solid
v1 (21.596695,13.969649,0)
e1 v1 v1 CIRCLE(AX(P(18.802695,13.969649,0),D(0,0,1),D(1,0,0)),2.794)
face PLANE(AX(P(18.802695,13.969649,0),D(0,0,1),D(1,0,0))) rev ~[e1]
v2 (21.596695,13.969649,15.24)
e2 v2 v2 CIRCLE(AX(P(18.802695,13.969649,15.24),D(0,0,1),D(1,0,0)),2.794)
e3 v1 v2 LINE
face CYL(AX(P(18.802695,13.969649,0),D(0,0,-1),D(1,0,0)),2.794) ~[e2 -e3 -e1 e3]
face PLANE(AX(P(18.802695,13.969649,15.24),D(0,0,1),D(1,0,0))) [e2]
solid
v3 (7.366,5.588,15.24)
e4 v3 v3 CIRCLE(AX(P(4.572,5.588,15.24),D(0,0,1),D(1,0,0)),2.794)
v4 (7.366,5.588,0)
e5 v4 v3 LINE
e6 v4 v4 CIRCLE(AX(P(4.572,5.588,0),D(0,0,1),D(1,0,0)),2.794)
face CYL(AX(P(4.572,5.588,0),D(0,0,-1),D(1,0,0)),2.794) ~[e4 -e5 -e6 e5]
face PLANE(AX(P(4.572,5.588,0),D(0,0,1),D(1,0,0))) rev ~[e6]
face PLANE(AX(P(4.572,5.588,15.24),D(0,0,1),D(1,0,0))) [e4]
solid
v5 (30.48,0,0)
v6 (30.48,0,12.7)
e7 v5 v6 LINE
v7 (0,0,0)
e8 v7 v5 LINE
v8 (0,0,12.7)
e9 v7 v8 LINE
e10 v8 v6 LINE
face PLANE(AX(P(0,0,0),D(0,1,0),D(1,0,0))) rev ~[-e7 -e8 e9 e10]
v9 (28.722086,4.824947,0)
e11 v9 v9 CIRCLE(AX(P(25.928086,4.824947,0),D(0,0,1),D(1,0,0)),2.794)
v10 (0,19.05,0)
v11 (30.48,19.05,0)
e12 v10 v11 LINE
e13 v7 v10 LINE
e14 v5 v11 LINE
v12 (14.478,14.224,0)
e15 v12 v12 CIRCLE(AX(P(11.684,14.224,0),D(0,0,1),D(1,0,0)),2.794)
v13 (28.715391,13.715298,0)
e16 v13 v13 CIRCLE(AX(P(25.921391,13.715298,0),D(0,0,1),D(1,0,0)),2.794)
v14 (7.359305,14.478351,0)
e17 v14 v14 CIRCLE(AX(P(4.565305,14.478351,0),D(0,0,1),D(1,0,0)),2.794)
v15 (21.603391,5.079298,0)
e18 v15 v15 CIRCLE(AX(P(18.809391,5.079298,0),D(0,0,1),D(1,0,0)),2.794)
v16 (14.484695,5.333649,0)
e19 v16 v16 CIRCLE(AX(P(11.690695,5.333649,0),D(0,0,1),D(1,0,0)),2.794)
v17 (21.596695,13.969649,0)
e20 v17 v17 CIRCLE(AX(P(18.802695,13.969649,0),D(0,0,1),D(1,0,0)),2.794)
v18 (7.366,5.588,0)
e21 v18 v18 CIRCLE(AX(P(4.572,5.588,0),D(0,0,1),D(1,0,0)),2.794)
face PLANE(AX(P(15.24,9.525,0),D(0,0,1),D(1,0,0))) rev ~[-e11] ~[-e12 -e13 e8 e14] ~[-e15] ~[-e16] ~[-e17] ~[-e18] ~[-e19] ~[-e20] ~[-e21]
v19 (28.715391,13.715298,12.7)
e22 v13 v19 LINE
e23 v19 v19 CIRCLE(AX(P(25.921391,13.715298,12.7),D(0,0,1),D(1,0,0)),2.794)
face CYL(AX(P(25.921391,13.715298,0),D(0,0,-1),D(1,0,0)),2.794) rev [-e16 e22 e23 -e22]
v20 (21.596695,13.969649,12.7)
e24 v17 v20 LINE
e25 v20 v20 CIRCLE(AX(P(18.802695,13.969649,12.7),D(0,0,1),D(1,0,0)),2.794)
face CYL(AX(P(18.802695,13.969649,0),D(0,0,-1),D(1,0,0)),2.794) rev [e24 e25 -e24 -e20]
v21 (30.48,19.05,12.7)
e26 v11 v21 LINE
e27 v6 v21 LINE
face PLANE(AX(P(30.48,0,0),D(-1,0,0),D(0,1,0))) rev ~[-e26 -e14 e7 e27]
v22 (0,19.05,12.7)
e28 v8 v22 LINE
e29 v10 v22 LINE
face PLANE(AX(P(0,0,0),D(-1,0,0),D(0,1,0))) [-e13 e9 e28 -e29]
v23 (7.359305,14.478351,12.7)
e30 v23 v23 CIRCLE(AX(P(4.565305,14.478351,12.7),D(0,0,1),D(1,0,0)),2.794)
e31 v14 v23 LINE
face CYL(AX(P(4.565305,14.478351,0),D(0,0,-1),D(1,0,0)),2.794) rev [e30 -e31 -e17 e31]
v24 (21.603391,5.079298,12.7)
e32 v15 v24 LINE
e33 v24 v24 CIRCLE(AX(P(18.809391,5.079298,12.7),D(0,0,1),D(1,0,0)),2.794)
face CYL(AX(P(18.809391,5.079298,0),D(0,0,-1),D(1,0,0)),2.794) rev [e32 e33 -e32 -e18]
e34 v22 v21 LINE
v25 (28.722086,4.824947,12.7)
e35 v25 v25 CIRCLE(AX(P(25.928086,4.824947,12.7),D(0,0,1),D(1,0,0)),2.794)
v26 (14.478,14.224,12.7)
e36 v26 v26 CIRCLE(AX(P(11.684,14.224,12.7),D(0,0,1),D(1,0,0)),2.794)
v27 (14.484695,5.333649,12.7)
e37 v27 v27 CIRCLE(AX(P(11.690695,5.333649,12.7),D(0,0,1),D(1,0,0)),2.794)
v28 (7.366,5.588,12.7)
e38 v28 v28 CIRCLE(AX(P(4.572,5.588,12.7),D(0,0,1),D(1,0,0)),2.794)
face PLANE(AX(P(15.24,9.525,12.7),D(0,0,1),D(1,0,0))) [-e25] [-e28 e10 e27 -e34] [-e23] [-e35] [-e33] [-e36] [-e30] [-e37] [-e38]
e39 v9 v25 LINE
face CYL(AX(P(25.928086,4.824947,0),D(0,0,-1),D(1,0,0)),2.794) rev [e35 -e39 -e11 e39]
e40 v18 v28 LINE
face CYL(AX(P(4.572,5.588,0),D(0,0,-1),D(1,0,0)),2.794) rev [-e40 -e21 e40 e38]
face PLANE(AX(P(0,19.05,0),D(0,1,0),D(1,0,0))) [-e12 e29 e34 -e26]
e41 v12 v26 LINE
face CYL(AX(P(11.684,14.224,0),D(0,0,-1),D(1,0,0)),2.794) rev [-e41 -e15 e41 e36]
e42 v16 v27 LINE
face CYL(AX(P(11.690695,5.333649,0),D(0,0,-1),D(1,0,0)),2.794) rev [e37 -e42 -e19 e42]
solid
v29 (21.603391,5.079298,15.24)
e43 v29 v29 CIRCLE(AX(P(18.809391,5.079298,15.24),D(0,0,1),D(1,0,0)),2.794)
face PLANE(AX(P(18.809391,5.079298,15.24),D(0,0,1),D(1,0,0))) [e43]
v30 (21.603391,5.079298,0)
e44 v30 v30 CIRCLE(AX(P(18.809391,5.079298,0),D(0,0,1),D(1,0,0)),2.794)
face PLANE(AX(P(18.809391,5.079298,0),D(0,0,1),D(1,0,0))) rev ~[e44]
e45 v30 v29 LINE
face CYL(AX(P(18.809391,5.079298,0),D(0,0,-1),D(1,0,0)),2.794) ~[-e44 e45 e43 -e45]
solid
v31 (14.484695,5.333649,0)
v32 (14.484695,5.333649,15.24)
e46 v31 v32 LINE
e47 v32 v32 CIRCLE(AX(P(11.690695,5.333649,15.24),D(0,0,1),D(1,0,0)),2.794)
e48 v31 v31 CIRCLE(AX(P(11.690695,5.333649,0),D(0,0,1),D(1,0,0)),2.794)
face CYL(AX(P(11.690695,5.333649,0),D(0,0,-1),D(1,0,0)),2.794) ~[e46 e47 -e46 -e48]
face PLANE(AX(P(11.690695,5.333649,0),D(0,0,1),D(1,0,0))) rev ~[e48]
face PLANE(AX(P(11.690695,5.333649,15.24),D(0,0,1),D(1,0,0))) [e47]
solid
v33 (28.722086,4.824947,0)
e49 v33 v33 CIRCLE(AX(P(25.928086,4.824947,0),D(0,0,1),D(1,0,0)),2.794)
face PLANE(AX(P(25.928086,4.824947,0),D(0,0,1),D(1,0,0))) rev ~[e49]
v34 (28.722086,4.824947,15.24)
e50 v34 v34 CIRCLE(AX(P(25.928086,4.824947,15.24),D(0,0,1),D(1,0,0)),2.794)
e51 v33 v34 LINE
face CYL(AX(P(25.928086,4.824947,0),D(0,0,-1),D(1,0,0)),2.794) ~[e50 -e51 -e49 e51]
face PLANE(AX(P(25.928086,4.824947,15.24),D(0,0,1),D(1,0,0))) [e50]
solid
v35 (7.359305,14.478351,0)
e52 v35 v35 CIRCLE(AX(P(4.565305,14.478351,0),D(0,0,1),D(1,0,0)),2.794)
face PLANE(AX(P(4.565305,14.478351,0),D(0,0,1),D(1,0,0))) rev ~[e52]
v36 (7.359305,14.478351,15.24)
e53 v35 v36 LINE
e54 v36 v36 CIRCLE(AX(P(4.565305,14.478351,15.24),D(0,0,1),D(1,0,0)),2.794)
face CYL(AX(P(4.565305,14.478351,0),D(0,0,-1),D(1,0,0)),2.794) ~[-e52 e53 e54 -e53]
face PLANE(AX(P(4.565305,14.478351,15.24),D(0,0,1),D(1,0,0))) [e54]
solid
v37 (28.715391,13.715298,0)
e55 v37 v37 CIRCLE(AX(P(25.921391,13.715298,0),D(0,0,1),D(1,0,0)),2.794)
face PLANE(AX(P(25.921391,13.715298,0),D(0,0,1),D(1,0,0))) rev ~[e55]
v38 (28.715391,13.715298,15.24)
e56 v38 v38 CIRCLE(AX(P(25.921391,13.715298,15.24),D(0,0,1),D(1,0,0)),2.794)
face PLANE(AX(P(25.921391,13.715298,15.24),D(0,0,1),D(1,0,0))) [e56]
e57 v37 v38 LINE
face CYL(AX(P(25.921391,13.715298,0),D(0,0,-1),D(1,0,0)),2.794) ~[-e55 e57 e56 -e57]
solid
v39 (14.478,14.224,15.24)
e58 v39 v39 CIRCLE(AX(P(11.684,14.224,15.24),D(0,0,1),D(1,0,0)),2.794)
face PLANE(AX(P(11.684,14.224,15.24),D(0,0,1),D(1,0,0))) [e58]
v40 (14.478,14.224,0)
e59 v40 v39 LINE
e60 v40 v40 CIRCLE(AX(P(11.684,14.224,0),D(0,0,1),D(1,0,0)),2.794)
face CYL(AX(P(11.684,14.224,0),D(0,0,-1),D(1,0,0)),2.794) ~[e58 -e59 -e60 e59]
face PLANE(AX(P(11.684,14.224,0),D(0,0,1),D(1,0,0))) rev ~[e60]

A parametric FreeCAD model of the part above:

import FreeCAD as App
import Part
import Sketcher
from FreeCAD import Vector
Q = App.Units.Quantity

doc = App.newDocument("Part")
body = doc.addObject("PartDesign::Body", "Body")
body.AllowCompound = True

sketch1 = body.newObject("Sketcher::SketchObject", "Sketch")
sketch1.AttachmentSupport = (doc.getObject("XY_Plane"), [""])
sketch1.MapMode = "FlatFace"
sketch1.addGeometry([
    Part.Circle(Vector(4.565305, 14.478351, 0), Vector(0, 0, 1), 2.794),
    Part.Circle(Vector(11.684, 14.224, 0), Vector(0, 0, 1), 2.794),
    Part.Circle(Vector(18.802695, 13.969649, 0), Vector(0, 0, 1), 2.794),
    Part.Circle(Vector(25.921391, 13.715298, 0), Vector(0, 0, 1), 2.794),
    Part.Circle(Vector(25.928086, 4.824947, 0), Vector(0, 0, 1), 2.794),
    Part.Circle(Vector(18.809391, 5.079298, 0), Vector(0, 0, 1), 2.794),
    Part.Circle(Vector(11.690695, 5.333649, 0), Vector(0, 0, 1), 2.794),
    Part.Circle(Vector(4.572, 5.588, 0), Vector(0, 0, 1), 2.794),
], False)
sketch1.addConstraint([
    Sketcher.Constraint("Equal", 0, 1),
    Sketcher.Constraint("Equal", 1, 2),
    Sketcher.Constraint("Equal", 2, 3),
    Sketcher.Constraint("Equal", 3, 4),
    Sketcher.Constraint("Equal", 4, 5),
    Sketcher.Constraint("Equal", 5, 6),
    Sketcher.Constraint("Equal", 6, 7),
    Sketcher.Constraint("Diameter", 0, Q("0.22 in")),
    Sketcher.Constraint("DistanceX", -1, 1, 1, 3, Q("0.46 in")),
    Sketcher.Constraint("DistanceY", -1, 1, 1, 3, Q("0.56 in")),
    Sketcher.Constraint("DistanceX", -1, 1, 7, 3, Q("0.18 in")),
    Sketcher.Constraint("DistanceY", -1, 1, 7, 3, Q("0.22 in")),
    Sketcher.Constraint("DistanceX", 5, 3, 3, 3, Q("0.28 in")),
    Sketcher.Constraint("DistanceY", 5, 3, 3, 3, Q("0.34 in")),
    Sketcher.Constraint("DistanceX", 6, 3, 2, 3, Q("0.28 in")),
    Sketcher.Constraint("DistanceY", 6, 3, 2, 3, Q("0.34 in")),
    Sketcher.Constraint("DistanceY", -1, 1, 3, 3, Q("13.715298 mm")),
    Sketcher.Constraint("DistanceY", 2, 3, 0, 3, Q("0.508702 mm")),
    Sketcher.Constraint("DistanceY", -1, 1, 0, 3, Q("14.478351 mm")),
    Sketcher.Constraint("DistanceX", -1, 1, 3, 3, Q("25.921391 mm")),
    Sketcher.Constraint("DistanceX", 0, 3, 2, 3, Q("14.23739 mm")),
    Sketcher.Constraint("DistanceY", 4, 3, 3, 3, Q("8.890351 mm")),
    Sketcher.Constraint("DistanceX", 2, 3, 4, 3, Q("7.125391 mm")),
    Sketcher.Constraint("DistanceX", -1, 1, 0, 3, Q("4.565305 mm")),
])
pad1 = body.newObject("PartDesign::Pad", "Pad")
pad1.Profile = sketch1
pad1.Length = Q("0.6 in")
body2 = doc.addObject("PartDesign::Body", "Body001")

sketch2 = body2.newObject("Sketcher::SketchObject", "Sketch001")
sketch2.AttachmentSupport = (doc.getObject("XY_Plane001"), [""])
sketch2.MapMode = "FlatFace"
sketch2.addGeometry([
    Part.LineSegment(Vector(0, 19.05, 0), Vector(0, 0, 0)),
    Part.LineSegment(Vector(0, 0, 0), Vector(30.48, 0, 0)),
    Part.LineSegment(Vector(30.48, 0, 0), Vector(30.48, 19.05, 0)),
    Part.LineSegment(Vector(30.48, 19.05, 0), Vector(0, 19.05, 0)),
    Part.Circle(Vector(4.572, 5.588, 0), Vector(0, 0, 1), 2.794),
    Part.Circle(Vector(11.690695, 5.333649, 0), Vector(0, 0, 1), 2.794),
    Part.Circle(Vector(18.809391, 5.079298, 0), Vector(0, 0, 1), 2.794),
    Part.Circle(Vector(25.928086, 4.824947, 0), Vector(0, 0, 1), 2.794),
    Part.Circle(Vector(4.565305, 14.478351, 0), Vector(0, 0, 1), 2.794),
    Part.Circle(Vector(11.684, 14.224, 0), Vector(0, 0, 1), 2.794),
    Part.Circle(Vector(18.802695, 13.969649, 0), Vector(0, 0, 1), 2.794),
    Part.Circle(Vector(25.921391, 13.715298, 0), Vector(0, 0, 1), 2.794),
], False)
sketch2.addConstraint([
    Sketcher.Constraint("Coincident", 0, 2, 1, 1),
    Sketcher.Constraint("Coincident", 1, 2, 2, 1),
    Sketcher.Constraint("Coincident", 2, 2, 3, 1),
    Sketcher.Constraint("Coincident", 3, 2, 0, 1),
    Sketcher.Constraint("Vertical", 0),
    Sketcher.Constraint("Horizontal", 1),
    Sketcher.Constraint("Vertical", 2),
    Sketcher.Constraint("Horizontal", 3),
    Sketcher.Constraint("Coincident", 0, 2, -1, 1),
    Sketcher.Constraint("Equal", 4, 5),
    Sketcher.Constraint("Equal", 5, 6),
    Sketcher.Constraint("Equal", 6, 7),
    Sketcher.Constraint("Equal", 7, 8),
    Sketcher.Constraint("Equal", 8, 9),
    Sketcher.Constraint("Equal", 9, 10),
    Sketcher.Constraint("Equal", 10, 11),
    Sketcher.Constraint("Diameter", 4, Q("0.22 in")),
    Sketcher.Constraint("DistanceX", 1, 1, 1, 2, Q("1.2 in")),
    Sketcher.Constraint("DistanceY", 0, 2, 0, 1, Q("0.75 in")),
    Sketcher.Constraint("DistanceX", -1, 1, 4, 3, Q("0.18 in")),
    Sketcher.Constraint("DistanceY", -1, 1, 4, 3, Q("0.22 in")),
    Sketcher.Constraint("DistanceX", -1, 1, 9, 3, Q("0.46 in")),
    Sketcher.Constraint("DistanceY", -1, 1, 9, 3, Q("0.56 in")),
    Sketcher.Constraint("DistanceX", 5, 3, 10, 3, Q("0.28 in")),
    Sketcher.Constraint("DistanceY", 5, 3, 10, 3, Q("0.34 in")),
    Sketcher.Constraint("DistanceX", 6, 3, 11, 3, Q("0.28 in")),
    Sketcher.Constraint("DistanceY", 6, 3, 11, 3, Q("0.34 in")),
    Sketcher.Constraint("DistanceY", -1, 1, 11, 3, Q("13.715298 mm")),
    Sketcher.Constraint("DistanceY", 5, 3, 8, 3, Q("9.144702 mm")),
    Sketcher.Constraint("DistanceY", -1, 1, 5, 3, Q("5.333649 mm")),
    Sketcher.Constraint("DistanceX", -1, 1, 6, 3, Q("18.809391 mm")),
    Sketcher.Constraint("DistanceY", 7, 3, 6, 3, Q("0.254351 mm")),
    Sketcher.Constraint("DistanceX", 5, 3, 7, 3, Q("14.237391 mm")),
    Sketcher.Constraint("DistanceX", 8, 3, 5, 3, Q("7.12539 mm")),
    Sketcher.Constraint("DistanceX", -1, 1, 5, 3, Q("11.690695 mm")),
])
pad2 = body2.newObject("PartDesign::Pad", "Pad001")
pad2.Profile = sketch2
pad2.Length = Q("0.5 in")

doc.recompute()
